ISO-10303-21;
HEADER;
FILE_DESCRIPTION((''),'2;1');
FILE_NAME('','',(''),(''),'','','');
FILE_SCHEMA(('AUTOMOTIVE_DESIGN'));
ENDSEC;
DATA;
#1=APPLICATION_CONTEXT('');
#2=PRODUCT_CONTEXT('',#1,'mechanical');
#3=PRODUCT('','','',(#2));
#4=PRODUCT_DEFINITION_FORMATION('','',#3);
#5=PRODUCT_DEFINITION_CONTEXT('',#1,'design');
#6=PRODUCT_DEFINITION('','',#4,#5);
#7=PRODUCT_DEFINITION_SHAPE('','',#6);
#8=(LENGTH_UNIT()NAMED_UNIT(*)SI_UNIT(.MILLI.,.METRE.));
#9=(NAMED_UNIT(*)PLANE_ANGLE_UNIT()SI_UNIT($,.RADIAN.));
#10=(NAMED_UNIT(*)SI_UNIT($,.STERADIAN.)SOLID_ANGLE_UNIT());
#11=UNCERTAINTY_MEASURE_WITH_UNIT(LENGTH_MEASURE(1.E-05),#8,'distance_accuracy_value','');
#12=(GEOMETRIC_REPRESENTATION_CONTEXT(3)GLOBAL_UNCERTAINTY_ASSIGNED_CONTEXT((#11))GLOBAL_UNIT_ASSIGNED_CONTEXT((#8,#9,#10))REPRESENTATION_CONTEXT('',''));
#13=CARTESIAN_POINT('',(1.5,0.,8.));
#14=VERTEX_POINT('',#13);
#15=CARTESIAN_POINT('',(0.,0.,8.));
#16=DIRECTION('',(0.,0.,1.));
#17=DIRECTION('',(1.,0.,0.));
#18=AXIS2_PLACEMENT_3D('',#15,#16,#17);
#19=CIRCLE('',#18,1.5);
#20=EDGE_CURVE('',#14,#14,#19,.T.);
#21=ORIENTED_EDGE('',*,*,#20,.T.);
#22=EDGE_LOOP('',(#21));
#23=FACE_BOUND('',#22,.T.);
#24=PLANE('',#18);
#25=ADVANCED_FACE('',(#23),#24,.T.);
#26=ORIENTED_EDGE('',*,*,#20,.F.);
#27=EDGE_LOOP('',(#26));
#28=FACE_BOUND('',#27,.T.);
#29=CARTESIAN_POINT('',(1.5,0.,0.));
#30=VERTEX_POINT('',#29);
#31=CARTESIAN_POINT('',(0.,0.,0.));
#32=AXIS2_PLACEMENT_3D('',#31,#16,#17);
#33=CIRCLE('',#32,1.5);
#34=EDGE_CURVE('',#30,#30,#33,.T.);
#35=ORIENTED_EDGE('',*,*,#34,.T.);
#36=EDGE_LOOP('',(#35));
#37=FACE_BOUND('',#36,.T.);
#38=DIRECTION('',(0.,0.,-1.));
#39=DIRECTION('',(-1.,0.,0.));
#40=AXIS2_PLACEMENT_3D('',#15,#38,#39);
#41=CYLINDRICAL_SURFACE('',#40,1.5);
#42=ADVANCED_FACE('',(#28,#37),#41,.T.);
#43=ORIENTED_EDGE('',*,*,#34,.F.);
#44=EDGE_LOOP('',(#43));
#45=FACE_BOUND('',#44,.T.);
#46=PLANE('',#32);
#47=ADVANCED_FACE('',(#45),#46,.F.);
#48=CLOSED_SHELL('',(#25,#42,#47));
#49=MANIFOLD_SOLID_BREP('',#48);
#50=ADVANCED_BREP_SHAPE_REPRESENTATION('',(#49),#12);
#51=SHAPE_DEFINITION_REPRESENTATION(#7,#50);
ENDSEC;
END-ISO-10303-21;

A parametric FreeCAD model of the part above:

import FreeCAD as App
import Part
import Sketcher
from FreeCAD import Vector
Q = App.Units.Quantity

doc = App.newDocument("Part")
body = doc.addObject("PartDesign::Body", "Body")

# Sketch on XY plane
sketch1 = doc.addObject("Sketcher::SketchObject", "Sketch")
body.addObject(sketch1)
sketch1.AttachmentSupport = (doc.XY_Plane, [""])
sketch1.MapMode = "FlatFace"
sketch1.addGeometry(Part.Circle(Vector(0, 0, 0), Vector(0, 0, 1), 1.5), False)
sketch1.addConstraint([
    Sketcher.Constraint("Coincident", 0, 3, -1, 1),
    Sketcher.Constraint("Diameter", 0, Q("3 mm")),
])
pad1 = doc.addObject("PartDesign::Pad", "Pad")
body.addObject(pad1)
pad1.Profile = sketch1
pad1.Length = 8

doc.recompute()
